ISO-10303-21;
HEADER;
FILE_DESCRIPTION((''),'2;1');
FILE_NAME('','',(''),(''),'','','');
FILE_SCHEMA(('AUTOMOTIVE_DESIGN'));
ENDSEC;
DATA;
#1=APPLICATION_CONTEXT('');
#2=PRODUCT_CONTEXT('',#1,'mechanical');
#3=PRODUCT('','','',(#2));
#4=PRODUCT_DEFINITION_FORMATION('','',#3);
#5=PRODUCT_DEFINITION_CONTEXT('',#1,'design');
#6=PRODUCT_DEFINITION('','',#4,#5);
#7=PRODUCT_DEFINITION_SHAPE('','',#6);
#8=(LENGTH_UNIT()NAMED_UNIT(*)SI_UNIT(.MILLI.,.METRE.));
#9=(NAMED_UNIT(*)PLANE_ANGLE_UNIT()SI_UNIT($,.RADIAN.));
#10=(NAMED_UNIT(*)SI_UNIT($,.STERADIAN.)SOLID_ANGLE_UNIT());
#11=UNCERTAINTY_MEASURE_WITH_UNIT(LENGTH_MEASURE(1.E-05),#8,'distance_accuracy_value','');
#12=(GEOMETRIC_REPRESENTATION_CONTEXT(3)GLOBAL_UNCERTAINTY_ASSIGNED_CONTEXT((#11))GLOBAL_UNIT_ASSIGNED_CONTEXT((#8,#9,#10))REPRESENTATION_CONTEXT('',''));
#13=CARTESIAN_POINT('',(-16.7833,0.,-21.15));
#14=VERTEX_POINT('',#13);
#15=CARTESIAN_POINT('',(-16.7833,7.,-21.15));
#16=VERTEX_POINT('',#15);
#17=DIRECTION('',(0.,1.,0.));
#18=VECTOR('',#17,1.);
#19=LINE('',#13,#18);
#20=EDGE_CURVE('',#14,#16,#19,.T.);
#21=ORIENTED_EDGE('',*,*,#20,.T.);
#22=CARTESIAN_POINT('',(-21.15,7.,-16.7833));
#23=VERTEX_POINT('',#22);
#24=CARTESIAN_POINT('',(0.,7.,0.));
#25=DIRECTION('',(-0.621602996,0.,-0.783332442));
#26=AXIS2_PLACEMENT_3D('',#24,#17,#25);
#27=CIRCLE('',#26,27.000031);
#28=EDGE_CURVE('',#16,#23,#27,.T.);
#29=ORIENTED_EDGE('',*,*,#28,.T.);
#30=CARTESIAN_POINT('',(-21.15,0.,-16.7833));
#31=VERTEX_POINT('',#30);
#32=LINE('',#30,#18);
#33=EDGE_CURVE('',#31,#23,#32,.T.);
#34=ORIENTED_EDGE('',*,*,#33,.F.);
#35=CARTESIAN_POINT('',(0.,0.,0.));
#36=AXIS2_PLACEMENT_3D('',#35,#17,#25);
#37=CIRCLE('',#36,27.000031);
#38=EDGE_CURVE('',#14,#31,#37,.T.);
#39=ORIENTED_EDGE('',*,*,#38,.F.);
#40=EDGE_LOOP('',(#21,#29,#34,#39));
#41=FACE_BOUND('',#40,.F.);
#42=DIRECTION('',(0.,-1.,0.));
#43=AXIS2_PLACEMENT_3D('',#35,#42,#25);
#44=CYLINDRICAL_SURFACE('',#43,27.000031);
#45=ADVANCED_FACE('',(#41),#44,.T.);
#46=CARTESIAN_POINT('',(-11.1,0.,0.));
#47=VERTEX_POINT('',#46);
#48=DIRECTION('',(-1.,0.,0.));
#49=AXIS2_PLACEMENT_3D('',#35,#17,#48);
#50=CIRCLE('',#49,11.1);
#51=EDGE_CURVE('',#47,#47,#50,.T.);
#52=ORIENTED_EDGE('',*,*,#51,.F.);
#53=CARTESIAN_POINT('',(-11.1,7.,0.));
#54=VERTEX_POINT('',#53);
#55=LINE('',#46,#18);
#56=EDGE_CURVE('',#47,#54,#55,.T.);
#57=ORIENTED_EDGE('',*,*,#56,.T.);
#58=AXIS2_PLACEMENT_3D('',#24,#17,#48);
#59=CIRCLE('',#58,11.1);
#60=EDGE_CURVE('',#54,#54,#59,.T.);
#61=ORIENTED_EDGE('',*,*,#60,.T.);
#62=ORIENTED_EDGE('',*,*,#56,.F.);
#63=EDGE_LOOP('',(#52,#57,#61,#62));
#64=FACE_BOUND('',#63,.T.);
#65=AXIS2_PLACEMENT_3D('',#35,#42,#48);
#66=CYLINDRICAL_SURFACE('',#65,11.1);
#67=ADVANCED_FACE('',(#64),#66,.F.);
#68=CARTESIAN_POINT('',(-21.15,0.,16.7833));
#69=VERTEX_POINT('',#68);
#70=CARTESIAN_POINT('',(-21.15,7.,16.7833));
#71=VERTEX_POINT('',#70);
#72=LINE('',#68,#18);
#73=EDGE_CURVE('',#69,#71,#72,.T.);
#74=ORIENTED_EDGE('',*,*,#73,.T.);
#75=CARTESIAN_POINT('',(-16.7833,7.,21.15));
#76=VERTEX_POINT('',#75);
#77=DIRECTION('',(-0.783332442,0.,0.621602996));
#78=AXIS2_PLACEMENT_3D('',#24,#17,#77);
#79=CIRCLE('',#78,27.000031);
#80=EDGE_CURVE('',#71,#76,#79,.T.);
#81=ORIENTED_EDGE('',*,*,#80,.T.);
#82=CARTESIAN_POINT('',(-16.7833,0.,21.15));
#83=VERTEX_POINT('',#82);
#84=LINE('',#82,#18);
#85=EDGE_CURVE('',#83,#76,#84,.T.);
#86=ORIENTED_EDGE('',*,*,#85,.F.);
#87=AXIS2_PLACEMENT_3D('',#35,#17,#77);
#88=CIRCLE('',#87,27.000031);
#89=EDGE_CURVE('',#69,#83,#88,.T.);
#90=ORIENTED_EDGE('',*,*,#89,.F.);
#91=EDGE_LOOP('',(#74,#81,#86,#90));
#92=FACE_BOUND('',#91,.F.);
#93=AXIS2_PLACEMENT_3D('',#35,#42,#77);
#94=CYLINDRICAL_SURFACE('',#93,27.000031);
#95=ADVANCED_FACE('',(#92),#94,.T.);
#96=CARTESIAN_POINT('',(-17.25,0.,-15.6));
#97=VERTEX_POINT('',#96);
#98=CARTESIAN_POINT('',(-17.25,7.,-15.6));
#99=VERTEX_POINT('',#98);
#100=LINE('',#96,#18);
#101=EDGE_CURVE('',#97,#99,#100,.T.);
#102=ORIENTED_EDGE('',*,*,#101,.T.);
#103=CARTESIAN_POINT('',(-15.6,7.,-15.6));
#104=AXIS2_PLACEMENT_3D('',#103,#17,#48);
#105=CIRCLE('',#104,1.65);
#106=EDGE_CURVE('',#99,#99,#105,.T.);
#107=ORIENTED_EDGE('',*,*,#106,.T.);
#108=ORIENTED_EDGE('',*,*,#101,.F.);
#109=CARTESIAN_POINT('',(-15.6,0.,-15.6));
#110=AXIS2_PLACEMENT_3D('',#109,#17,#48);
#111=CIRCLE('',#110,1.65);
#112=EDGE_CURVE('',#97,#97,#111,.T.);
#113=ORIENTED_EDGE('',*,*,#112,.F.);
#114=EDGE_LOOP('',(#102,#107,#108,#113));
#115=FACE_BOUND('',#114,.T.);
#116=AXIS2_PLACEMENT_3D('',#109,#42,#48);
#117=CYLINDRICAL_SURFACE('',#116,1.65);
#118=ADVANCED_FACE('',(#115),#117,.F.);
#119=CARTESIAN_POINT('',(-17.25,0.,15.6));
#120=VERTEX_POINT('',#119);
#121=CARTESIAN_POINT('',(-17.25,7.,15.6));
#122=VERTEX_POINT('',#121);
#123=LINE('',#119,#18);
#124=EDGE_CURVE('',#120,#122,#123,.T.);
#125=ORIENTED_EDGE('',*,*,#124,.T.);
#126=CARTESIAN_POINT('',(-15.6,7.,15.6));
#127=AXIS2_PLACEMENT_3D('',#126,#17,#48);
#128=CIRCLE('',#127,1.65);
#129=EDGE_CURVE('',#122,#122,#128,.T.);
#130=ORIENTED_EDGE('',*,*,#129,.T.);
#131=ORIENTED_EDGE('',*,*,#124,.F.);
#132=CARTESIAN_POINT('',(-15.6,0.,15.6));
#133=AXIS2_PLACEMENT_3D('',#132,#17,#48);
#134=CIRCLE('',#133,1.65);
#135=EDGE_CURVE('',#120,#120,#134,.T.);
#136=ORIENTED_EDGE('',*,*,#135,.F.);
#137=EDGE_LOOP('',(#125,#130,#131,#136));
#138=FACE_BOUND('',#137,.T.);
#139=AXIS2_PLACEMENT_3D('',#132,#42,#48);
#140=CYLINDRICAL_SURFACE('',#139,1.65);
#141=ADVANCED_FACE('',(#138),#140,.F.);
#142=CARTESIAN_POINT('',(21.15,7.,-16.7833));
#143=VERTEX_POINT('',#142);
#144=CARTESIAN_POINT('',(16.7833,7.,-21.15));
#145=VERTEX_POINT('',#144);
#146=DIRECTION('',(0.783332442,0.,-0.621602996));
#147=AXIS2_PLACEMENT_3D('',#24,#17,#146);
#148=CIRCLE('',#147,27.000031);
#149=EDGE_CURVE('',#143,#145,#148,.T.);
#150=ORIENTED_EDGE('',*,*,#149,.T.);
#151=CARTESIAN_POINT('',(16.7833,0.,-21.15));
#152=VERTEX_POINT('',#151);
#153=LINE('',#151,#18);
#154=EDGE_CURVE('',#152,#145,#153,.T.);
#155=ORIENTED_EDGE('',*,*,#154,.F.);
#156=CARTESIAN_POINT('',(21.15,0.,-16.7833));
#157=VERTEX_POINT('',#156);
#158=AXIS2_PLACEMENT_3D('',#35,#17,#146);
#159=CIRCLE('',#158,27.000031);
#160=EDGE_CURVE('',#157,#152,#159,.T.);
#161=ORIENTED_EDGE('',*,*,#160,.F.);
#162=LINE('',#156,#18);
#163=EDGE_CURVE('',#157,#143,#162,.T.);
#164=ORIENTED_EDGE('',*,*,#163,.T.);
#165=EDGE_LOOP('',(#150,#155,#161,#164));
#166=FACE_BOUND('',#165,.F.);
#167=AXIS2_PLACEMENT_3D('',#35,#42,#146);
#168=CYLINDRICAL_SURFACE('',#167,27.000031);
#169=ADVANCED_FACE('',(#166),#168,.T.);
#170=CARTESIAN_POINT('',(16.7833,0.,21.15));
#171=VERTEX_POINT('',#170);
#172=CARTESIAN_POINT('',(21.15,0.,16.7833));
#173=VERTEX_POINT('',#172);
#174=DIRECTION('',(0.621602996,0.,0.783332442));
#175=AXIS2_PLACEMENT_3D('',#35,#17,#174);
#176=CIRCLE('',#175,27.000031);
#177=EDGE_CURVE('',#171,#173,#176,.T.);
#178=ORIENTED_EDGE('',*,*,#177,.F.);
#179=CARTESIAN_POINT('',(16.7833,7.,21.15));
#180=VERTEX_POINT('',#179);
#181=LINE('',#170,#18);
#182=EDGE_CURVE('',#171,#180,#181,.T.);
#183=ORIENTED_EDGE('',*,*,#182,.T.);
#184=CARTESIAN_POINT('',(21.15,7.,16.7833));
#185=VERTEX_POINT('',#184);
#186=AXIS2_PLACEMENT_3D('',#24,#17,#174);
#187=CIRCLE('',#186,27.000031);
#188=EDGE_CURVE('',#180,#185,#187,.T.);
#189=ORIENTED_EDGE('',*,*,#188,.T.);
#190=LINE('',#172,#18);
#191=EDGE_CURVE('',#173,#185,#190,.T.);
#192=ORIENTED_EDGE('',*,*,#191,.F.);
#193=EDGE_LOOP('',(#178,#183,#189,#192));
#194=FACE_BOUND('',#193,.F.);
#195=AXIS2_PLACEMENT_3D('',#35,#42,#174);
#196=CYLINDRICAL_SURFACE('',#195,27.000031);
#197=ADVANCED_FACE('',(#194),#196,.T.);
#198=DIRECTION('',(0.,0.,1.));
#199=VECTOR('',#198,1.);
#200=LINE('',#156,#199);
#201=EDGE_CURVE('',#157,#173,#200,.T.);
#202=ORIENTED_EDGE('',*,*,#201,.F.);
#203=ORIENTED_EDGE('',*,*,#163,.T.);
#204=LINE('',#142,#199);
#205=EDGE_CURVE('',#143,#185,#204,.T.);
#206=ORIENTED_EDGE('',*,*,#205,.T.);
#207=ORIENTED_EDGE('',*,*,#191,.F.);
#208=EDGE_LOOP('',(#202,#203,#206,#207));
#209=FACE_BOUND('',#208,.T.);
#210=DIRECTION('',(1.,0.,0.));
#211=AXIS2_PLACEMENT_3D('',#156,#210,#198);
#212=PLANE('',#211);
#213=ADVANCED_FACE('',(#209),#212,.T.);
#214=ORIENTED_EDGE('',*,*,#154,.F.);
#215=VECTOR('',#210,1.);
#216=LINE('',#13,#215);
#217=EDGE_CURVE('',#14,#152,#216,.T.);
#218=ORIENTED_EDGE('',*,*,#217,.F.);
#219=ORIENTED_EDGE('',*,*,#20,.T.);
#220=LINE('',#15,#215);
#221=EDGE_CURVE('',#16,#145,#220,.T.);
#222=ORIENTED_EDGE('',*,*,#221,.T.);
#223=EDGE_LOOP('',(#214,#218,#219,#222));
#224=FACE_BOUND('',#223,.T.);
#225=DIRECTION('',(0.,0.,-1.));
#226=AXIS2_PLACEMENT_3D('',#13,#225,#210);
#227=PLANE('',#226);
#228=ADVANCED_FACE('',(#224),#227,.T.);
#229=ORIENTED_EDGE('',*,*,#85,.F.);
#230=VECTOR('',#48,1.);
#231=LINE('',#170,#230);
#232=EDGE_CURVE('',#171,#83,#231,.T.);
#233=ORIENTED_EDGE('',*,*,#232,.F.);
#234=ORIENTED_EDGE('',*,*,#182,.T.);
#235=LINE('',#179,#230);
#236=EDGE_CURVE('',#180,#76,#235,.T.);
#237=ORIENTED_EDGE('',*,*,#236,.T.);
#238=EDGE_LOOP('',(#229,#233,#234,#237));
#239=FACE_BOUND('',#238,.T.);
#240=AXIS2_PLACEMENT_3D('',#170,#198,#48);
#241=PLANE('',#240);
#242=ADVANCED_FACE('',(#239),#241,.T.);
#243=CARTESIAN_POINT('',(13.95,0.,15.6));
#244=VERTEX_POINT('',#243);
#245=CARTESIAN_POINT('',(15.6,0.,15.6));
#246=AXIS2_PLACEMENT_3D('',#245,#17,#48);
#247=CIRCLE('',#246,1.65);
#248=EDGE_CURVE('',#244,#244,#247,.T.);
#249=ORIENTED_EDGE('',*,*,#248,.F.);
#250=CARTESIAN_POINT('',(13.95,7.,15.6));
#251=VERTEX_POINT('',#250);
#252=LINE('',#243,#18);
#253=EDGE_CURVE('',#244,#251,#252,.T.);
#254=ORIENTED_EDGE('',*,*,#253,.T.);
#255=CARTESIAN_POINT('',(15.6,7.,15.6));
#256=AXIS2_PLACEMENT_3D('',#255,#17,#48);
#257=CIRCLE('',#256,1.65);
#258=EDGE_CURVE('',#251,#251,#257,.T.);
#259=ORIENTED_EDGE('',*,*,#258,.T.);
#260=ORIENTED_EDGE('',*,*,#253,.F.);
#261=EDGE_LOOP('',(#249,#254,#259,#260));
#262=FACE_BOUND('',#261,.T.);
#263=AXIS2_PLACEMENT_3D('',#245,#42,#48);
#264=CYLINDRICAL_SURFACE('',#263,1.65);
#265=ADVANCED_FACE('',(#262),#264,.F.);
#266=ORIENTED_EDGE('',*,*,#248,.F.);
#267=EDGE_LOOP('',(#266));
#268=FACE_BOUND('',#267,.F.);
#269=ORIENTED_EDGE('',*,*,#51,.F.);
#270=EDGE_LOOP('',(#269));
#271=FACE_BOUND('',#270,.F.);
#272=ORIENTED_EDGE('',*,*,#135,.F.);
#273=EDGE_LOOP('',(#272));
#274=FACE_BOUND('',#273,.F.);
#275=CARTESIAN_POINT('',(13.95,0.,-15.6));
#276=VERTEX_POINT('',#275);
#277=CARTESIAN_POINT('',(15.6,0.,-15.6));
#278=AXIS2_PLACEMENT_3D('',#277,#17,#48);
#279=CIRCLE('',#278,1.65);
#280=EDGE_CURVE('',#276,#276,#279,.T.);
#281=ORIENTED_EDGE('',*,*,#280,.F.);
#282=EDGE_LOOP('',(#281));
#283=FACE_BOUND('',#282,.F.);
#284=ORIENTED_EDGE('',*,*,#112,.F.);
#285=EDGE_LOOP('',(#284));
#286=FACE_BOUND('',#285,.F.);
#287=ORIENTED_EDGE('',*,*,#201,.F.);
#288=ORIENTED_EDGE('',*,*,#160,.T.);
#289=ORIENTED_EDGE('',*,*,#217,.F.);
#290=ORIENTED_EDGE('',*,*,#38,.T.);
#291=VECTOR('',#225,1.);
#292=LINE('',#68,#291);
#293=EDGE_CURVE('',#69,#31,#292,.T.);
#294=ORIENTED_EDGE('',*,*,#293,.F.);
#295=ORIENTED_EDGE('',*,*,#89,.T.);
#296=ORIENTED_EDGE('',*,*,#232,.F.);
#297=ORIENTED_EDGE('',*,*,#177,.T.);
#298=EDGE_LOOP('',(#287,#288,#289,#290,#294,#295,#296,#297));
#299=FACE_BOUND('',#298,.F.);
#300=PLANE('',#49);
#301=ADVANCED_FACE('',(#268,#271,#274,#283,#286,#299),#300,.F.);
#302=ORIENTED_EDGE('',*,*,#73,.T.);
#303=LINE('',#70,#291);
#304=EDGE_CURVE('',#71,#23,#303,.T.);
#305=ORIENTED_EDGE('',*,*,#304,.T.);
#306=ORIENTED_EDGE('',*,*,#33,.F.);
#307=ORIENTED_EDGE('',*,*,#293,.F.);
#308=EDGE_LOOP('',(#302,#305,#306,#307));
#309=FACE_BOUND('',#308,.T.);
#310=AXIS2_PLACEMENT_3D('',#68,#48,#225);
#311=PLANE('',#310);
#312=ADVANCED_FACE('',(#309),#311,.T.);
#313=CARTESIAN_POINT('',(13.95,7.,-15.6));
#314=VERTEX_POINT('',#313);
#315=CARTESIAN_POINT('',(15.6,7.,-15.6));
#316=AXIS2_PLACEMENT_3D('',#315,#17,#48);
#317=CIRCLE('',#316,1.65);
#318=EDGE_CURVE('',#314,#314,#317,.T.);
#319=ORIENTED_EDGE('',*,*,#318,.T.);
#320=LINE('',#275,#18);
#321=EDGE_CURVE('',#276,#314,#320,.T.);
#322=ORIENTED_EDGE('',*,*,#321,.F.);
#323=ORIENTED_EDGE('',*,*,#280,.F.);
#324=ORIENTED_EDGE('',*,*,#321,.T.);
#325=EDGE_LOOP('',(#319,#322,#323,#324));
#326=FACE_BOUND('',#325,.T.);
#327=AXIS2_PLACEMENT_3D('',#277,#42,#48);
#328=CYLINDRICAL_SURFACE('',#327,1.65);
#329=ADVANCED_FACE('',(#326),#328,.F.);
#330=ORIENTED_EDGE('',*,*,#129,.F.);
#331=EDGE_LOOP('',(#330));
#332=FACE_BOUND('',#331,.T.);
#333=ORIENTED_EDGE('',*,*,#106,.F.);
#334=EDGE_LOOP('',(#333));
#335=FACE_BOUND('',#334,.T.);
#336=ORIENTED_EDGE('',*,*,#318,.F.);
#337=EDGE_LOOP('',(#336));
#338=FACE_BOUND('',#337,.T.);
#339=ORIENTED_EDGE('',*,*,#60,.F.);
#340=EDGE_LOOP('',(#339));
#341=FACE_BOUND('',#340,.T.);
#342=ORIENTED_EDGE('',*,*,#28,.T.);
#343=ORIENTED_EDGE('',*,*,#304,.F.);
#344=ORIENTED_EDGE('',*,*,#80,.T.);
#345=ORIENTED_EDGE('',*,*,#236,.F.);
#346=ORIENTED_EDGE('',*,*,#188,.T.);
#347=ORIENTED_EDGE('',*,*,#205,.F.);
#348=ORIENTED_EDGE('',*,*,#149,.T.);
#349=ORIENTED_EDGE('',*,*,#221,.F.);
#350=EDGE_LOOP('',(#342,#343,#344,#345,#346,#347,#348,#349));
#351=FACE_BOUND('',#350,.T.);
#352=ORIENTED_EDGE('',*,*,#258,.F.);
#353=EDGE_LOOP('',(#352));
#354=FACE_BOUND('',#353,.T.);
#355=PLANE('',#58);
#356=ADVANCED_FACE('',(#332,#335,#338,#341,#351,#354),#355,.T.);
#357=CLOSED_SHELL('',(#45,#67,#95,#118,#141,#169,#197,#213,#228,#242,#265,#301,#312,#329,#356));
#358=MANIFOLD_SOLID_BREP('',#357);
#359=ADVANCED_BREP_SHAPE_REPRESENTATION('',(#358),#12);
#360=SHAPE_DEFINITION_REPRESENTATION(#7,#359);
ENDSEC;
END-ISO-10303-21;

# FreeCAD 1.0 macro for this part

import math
import FreeCAD as App
import Part
import Sketcher

V = App.Vector

doc = App.newDocument("Part")
body = doc.addObject("PartDesign::Body", "Body")

# Sketch on XZ plane
sketch1 = body.newObject("Sketcher::SketchObject", "Sketch")
sketch1.AttachmentSupport = (doc.getObject("XZ_Plane"), [""])
sketch1.MapMode = "FlatFace"
sketch1.addGeometry([
    Part.LineSegment(V(-16.8, 21.1, 0), V(16.8, 21.1, 0)),  # 0
    Part.ArcOfCircle(Part.Circle(V(0, 0, 0), V(0, 0, 1), 27), math.radians(38.43), math.radians(51.57)),  # 1
    Part.LineSegment(V(21.1, 16.8, 0), V(21.1, -16.8, 0)),  # 2
    Part.ArcOfCircle(Part.Circle(V(0, 0, 0), V(0, 0, 1), 27), math.radians(-51.57), math.radians(-38.43)),  # 3
    Part.LineSegment(V(16.8, -21.1, 0), V(-16.8, -21.1, 0)),  # 4
    Part.ArcOfCircle(Part.Circle(V(0, 0, 0), V(0, 0, 1), 27), math.radians(-141.57), math.radians(-128.43)),  # 5
    Part.LineSegment(V(-21.1, -16.8, 0), V(-21.1, 16.8, 0)),  # 6
    Part.ArcOfCircle(Part.Circle(V(0, 0, 0), V(0, 0, 1), 27), math.radians(128.43), math.radians(141.57)),  # 7
    Part.Circle(V(15.6, -15.6, 0), V(0, 0, 1), 1.6),  # 8
    Part.Circle(V(-15.6, -15.6, 0), V(0, 0, 1), 1.6),  # 9
    Part.Circle(V(15.6, 15.6, 0), V(0, 0, 1), 1.6),  # 10
    Part.Circle(V(0, 0, 0), V(0, 0, 1), 11.1),  # 11
    Part.Circle(V(-15.6, 15.6, 0), V(0, 0, 1), 1.6),  # 12
], False)
sketch1.addConstraint([
    Sketcher.Constraint("Coincident", 0, 2, 1, 2),
    Sketcher.Constraint("Coincident", 1, 1, 2, 1),
    Sketcher.Constraint("Coincident", 2, 2, 3, 2),
    Sketcher.Constraint("Coincident", 3, 1, 4, 1),
    Sketcher.Constraint("Coincident", 4, 2, 5, 2),
    Sketcher.Constraint("Coincident", 5, 1, 6, 1),
    Sketcher.Constraint("Coincident", 6, 2, 7, 2),
    Sketcher.Constraint("Coincident", 7, 1, 0, 1),
    Sketcher.Constraint("Horizontal", 0),
    Sketcher.Constraint("Vertical", 2),
    Sketcher.Constraint("Horizontal", 4),
    Sketcher.Constraint("Vertical", 6),
    Sketcher.Constraint("Coincident", 1, 3, -1, 1),
    Sketcher.Constraint("Coincident", 3, 3, -1, 1),
    Sketcher.Constraint("Coincident", 5, 3, -1, 1),
    Sketcher.Constraint("Coincident", 7, 3, -1, 1),
    Sketcher.Constraint("Coincident", 11, 3, -1, 1),
    Sketcher.Constraint("Equal", 1, 3),
    Sketcher.Constraint("Equal", 3, 5),
    Sketcher.Constraint("Equal", 5, 7),
    Sketcher.Constraint("Equal", 8, 9),
    Sketcher.Constraint("Equal", 9, 10),
    Sketcher.Constraint("Equal", 10, 12),
    Sketcher.Constraint("Symmetric", 9, 3, 10, 3, -1, 1),
    Sketcher.Constraint("Symmetric", 8, 3, 12, 3, -1, 1),
    Sketcher.Constraint("Symmetric", 8, 3, 9, 3, -2),
    Sketcher.Constraint("Horizontal", 2, 2, 5, 1),
    Sketcher.Constraint("Vertical", 0, 2, 3, 1),
    Sketcher.Constraint("Equal", 4, 2),
    Sketcher.Constraint("Diameter", 8, 3.3),
    Sketcher.Constraint("Diameter", 11, 22.2),
    Sketcher.Constraint("Radius", 1, 27.0),
    Sketcher.Constraint("DistanceX", -1, 1, 8, 3, 15.6),
    Sketcher.Constraint("DistanceY", 8, 3, -1, 1, 15.6),
    Sketcher.Constraint("DistanceY", -1, 1, 0, 2, 21.15),
])
pad1 = body.newObject("PartDesign::Pad", "Pad")
pad1.Profile = sketch1
pad1.Length = 7
pad1.Reversed = True

doc.recompute()
